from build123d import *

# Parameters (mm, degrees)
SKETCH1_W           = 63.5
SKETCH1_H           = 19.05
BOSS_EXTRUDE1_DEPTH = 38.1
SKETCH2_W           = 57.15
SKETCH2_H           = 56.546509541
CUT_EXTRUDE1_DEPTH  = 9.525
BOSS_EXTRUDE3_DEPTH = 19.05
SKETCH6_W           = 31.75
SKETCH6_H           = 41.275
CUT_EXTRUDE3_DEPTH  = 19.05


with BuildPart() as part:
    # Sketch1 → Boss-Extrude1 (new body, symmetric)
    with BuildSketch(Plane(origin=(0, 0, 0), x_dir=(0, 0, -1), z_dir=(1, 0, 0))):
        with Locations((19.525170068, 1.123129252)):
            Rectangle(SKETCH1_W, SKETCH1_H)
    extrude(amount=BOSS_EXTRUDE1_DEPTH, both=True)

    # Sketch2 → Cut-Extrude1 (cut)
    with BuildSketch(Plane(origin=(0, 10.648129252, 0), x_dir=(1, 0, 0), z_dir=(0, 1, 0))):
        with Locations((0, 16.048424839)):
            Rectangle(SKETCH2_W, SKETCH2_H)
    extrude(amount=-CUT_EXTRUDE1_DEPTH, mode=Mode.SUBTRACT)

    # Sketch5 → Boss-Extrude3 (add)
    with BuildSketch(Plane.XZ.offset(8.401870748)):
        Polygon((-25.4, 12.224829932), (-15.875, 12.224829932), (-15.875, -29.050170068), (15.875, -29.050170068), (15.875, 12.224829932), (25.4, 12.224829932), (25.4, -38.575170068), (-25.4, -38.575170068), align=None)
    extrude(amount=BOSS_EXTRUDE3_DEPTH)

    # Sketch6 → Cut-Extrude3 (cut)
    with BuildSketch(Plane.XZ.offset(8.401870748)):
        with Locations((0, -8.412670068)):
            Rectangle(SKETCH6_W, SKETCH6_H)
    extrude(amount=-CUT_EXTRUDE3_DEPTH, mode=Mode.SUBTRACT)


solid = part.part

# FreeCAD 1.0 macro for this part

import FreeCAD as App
import Part
import Sketcher
Q = App.Units.Quantity

doc = App.newDocument("Part")
body = doc.addObject("PartDesign::Body", "Body")

sketch1 = body.newObject("Sketcher::SketchObject", "Sketch")
sketch1.AttachmentSupport = (doc.getObject("YZ_Plane"), [""])
sketch1.MapMode = "FlatFace"
sketch1.addGeometry([
    Part.LineSegment(App.Vector(11, 12, 0), App.Vector(-8, 12, 0)),
    Part.LineSegment(App.Vector(-8, 12, 0), App.Vector(-8, -51, 0)),
    Part.LineSegment(App.Vector(-8, -51, 0), App.Vector(11, -51, 0)),
    Part.LineSegment(App.Vector(11, -51, 0), App.Vector(11, 12, 0)),
], False)
sketch1.addConstraint([
    Sketcher.Constraint("Coincident", 0, 2, 1, 1),
    Sketcher.Constraint("Coincident", 1, 2, 2, 1),
    Sketcher.Constraint("Coincident", 2, 2, 3, 1),
    Sketcher.Constraint("Coincident", 3, 2, 0, 1),
    Sketcher.Constraint("Horizontal", 0),
    Sketcher.Constraint("Vertical", 1),
    Sketcher.Constraint("Horizontal", 2),
    Sketcher.Constraint("Vertical", 3),
    Sketcher.Constraint("DistanceY", 1, 2, 1, 1, Q("2.5 in")),
    Sketcher.Constraint("DistanceX", 0, 2, 0, 1, Q("0.75 in")),
    Sketcher.Constraint("DistanceX", 0, 2, -1, 1, 8.401871),
    Sketcher.Constraint("DistanceY", -1, 1, 0, 2, 12.22483),
])
pad1 = body.newObject("PartDesign::Pad", "Pad")
pad1.Profile = sketch1
pad1.Length = Q("3 in")
pad1.Midplane = True

sketch2 = body.newObject("Sketcher::SketchObject", "Sketch001")
sketch2.AttachmentSupport = (doc.getObject("XZ_Plane"), [""])
sketch2.MapMode = "FlatFace"
sketch2.AttachmentOffset = App.Placement(App.Vector(0, 0, -10.648129), App.Rotation())
sketch2.addGeometry([
    Part.LineSegment(App.Vector(-29, -44, 0), App.Vector(-29, 12, 0)),
    Part.LineSegment(App.Vector(-29, 12, 0), App.Vector(29, 12, 0)),
    Part.LineSegment(App.Vector(29, 12, 0), App.Vector(29, -44, 0)),
    Part.LineSegment(App.Vector(29, -44, 0), App.Vector(-29, -44, 0)),
], False)
sketch2.addConstraint([
    Sketcher.Constraint("Coincident", 0, 2, 1, 1),
    Sketcher.Constraint("Coincident", 1, 2, 2, 1),
    Sketcher.Constraint("Coincident", 2, 2, 3, 1),
    Sketcher.Constraint("Coincident", 3, 2, 0, 1),
    Sketcher.Constraint("Vertical", 0),
    Sketcher.Constraint("Horizontal", 1),
    Sketcher.Constraint("Vertical", 2),
    Sketcher.Constraint("Horizontal", 3),
    Sketcher.Constraint("DistanceX", 1, 1, 1, 2, Q("2.25 in")),
    Sketcher.Constraint("DistanceX", 0, 2, -1, 1, Q("1.125 in")),
    Sketcher.Constraint("DistanceY", 0, 1, 0, 2, 56.54651),
    Sketcher.Constraint("DistanceY", -1, 1, 0, 2, 12.22483),
])
pocket1 = body.newObject("PartDesign::Pocket", "Pocket")
pocket1.Profile = sketch2
pocket1.Length = Q("0.375 in")
pocket1.Reversed = True

sketch3 = body.newObject("Sketcher::SketchObject", "Sketch002")
sketch3.AttachmentSupport = (doc.getObject("XZ_Plane"), [""])
sketch3.MapMode = "FlatFace"
sketch3.AttachmentOffset = App.Placement(App.Vector(0, 0, 8.401871), App.Rotation())
sketch3.addGeometry([
    Part.LineSegment(App.Vector(-16, 12, 0), App.Vector(-25, 12, 0)),
    Part.LineSegment(App.Vector(-25, 12, 0), App.Vector(-25, -39, 0)),
    Part.LineSegment(App.Vector(-25, -39, 0), App.Vector(25, -39, 0)),
    Part.LineSegment(App.Vector(25, -39, 0), App.Vector(25, 12, 0)),
    Part.LineSegment(App.Vector(25, 12, 0), App.Vector(16, 12, 0)),
    Part.LineSegment(App.Vector(16, 12, 0), App.Vector(16, -29, 0)),
    Part.LineSegment(App.Vector(16, -29, 0), App.Vector(-16, -29, 0)),
    Part.LineSegment(App.Vector(-16, -29, 0), App.Vector(-16, 12, 0)),
], False)
sketch3.addConstraint([
    Sketcher.Constraint("Coincident", 0, 2, 1, 1),
    Sketcher.Constraint("Coincident", 1, 2, 2, 1),
    Sketcher.Constraint("Coincident", 2, 2, 3, 1),
    Sketcher.Constraint("Coincident", 3, 2, 4, 1),
    Sketcher.Constraint("Coincident", 4, 2, 5, 1),
    Sketcher.Constraint("Coincident", 5, 2, 6, 1),
    Sketcher.Constraint("Coincident", 6, 2, 7, 1),
    Sketcher.Constraint("Coincident", 7, 2, 0, 1),
    Sketcher.Constraint("Horizontal", 0),
    Sketcher.Constraint("Vertical", 1),
    Sketcher.Constraint("Horizontal", 2),
    Sketcher.Constraint("Vertical", 3),
    Sketcher.Constraint("Horizontal", 4),
    Sketcher.Constraint("Vertical", 5),
    Sketcher.Constraint("Horizontal", 6),
    Sketcher.Constraint("Vertical", 7),
    Sketcher.Constraint("Symmetric", 0, 2, 3, 2, -2),
    Sketcher.Constraint("Equal", 0, 4),
    Sketcher.Constraint("Equal", 2, 1),
    Sketcher.Constraint("DistanceX", 2, 1, 2, 2, Q("2 in")),
    Sketcher.Constraint("DistanceX", 6, 2, 6, 1, Q("1.25 in")),
    Sketcher.Constraint("DistanceY", 5, 2, 5, 1, Q("1.625 in")),
    Sketcher.Constraint("DistanceY", -1, 1, 0, 2, 12.22483),
])
pad2 = body.newObject("PartDesign::Pad", "Pad001")
pad2.Profile = sketch3
pad2.Length = Q("0.75 in")

sketch4 = body.newObject("Sketcher::SketchObject", "Sketch003")
sketch4.AttachmentSupport = (doc.getObject("XZ_Plane"), [""])
sketch4.MapMode = "FlatFace"
sketch4.AttachmentOffset = App.Placement(App.Vector(0, 0, 8.401871), App.Rotation())
sketch4.addGeometry([
    Part.LineSegment(App.Vector(-16, 12, 0), App.Vector(-16, -29, 0)),
    Part.LineSegment(App.Vector(-16, -29, 0), App.Vector(16, -29, 0)),
    Part.LineSegment(App.Vector(16, -29, 0), App.Vector(16, 12, 0)),
    Part.LineSegment(App.Vector(16, 12, 0), App.Vector(-16, 12, 0)),
], False)
sketch4.addConstraint([
    Sketcher.Constraint("Coincident", 0, 2, 1, 1),
    Sketcher.Constraint("Coincident", 1, 2, 2, 1),
    Sketcher.Constraint("Coincident", 2, 2, 3, 1),
    Sketcher.Constraint("Coincident", 3, 2, 0, 1),
    Sketcher.Constraint("Vertical", 0),
    Sketcher.Constraint("Horizontal", 1),
    Sketcher.Constraint("Vertical", 2),
    Sketcher.Constraint("Horizontal", 3),
    Sketcher.Constraint("DistanceX", 1, 1, 1, 2, Q("1.25 in")),
    Sketcher.Constraint("DistanceY", 0, 2, 0, 1, Q("1.625 in")),
    Sketcher.Constraint("DistanceX", 0, 2, -1, 1, Q("0.625 in")),
    Sketcher.Constraint("DistanceY", 0, 2, -1, 1, 29.05017),
])
pocket2 = body.newObject("PartDesign::Pocket", "Pocket001")
pocket2.Profile = sketch4
pocket2.Length = Q("0.75 in")

doc.recompute()
